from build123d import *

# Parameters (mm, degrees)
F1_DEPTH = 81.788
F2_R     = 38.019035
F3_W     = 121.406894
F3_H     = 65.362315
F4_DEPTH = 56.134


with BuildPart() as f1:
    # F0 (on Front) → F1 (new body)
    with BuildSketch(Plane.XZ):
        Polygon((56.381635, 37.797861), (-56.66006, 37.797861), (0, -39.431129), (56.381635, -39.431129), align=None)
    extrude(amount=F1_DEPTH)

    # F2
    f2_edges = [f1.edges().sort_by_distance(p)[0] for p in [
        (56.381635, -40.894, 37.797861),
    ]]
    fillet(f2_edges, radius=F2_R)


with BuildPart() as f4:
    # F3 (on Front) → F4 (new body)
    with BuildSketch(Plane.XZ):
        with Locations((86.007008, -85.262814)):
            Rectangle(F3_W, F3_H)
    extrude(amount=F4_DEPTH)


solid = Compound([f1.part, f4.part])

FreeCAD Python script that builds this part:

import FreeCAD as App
import Part
import Sketcher

V = App.Vector
Q = App.Units.Quantity


def edges_at(feature, points):
    """Names of the edges that pass closest to the given points."""
    edges = feature.Shape.Edges
    near = lambda p: min(range(len(edges)), key=lambda i: edges[i].distToShape(Part.Vertex(*p))[0])
    return sorted({f"Edge{near(p) + 1}" for p in points})


def add_polygon(sketch, points):
    """Adds a closed chain of lines whose ends are joined by coincident constraints."""
    first, n = sketch.GeometryCount, len(points)
    for a, b in zip(points, points[1:] + points[:1]):
        sketch.addGeometry(Part.LineSegment(App.Vector(*a, 0), App.Vector(*b, 0)), False)
    for i in range(n):
        sketch.addConstraint(Sketcher.Constraint("Coincident", first + i, 2, first + (i + 1) % n, 1))

doc = App.newDocument("Part")
body = doc.addObject("PartDesign::Body", "Body")

# Sketch on XZ plane
sketch1 = body.newObject("Sketcher::SketchObject", "Sketch")
sketch1.AttachmentSupport = (doc.getObject("XZ_Plane"), [""])
sketch1.MapMode = "FlatFace"
add_polygon(sketch1, [(56, 38), (-57, 38), (0, -39), (56, -39)])  # lines 0-3
sketch1.addConstraint([
    Sketcher.Constraint("Horizontal", 0),
    Sketcher.Constraint("Horizontal", 2),
    Sketcher.Constraint("Vertical", 3),
    Sketcher.Constraint("PointOnObject", 1, 2, -2),
    Sketcher.Constraint("DistanceY", 3, 1, 3, 2, 77.22899),
    Sketcher.Constraint("DistanceX", 0, 2, 0, 1, 113.041695),
    Sketcher.Constraint("DistanceX", 2, 1, 2, 2, 56.381635),
    Sketcher.Constraint("DistanceY", -1, 1, 0, 2, 37.797861),
])
pad1 = body.newObject("PartDesign::Pad", "Pad")
pad1.Profile = sketch1
pad1.Length = Q("3.22 in")
doc.recompute()

fillet = body.newObject("PartDesign::Fillet", "Fillet")
fillet.Base = (pad1, edges_at(pad1, [(56.382, -40.894, 37.798)]))
fillet.Radius = 38.019035
body2 = doc.addObject("PartDesign::Body", "Body001")

# Sketch on XZ plane
sketch2 = body2.newObject("Sketcher::SketchObject", "Sketch001")
sketch2.AttachmentSupport = (doc.getObject("XZ_Plane001"), [""])
sketch2.MapMode = "FlatFace"
add_polygon(sketch2, [(25, -53), (25, -118), (147, -118), (147, -53)])  # lines 0-3
sketch2.addConstraint([
    Sketcher.Constraint("Vertical", 0),
    Sketcher.Constraint("Horizontal", 1),
    Sketcher.Constraint("Vertical", 2),
    Sketcher.Constraint("Horizontal", 3),
    Sketcher.Constraint("DistanceX", 1, 1, 1, 2, 121.406894),
    Sketcher.Constraint("DistanceY", 0, 2, 0, 1, 65.362315),
    Sketcher.Constraint("DistanceX", -1, 1, 0, 2, 25.303561),
    Sketcher.Constraint("DistanceY", 0, 2, -1, 1, 117.943972),
])
pad2 = body2.newObject("PartDesign::Pad", "Pad001")
pad2.Profile = sketch2
pad2.Length = Q("2.21 in")

doc.recompute()
